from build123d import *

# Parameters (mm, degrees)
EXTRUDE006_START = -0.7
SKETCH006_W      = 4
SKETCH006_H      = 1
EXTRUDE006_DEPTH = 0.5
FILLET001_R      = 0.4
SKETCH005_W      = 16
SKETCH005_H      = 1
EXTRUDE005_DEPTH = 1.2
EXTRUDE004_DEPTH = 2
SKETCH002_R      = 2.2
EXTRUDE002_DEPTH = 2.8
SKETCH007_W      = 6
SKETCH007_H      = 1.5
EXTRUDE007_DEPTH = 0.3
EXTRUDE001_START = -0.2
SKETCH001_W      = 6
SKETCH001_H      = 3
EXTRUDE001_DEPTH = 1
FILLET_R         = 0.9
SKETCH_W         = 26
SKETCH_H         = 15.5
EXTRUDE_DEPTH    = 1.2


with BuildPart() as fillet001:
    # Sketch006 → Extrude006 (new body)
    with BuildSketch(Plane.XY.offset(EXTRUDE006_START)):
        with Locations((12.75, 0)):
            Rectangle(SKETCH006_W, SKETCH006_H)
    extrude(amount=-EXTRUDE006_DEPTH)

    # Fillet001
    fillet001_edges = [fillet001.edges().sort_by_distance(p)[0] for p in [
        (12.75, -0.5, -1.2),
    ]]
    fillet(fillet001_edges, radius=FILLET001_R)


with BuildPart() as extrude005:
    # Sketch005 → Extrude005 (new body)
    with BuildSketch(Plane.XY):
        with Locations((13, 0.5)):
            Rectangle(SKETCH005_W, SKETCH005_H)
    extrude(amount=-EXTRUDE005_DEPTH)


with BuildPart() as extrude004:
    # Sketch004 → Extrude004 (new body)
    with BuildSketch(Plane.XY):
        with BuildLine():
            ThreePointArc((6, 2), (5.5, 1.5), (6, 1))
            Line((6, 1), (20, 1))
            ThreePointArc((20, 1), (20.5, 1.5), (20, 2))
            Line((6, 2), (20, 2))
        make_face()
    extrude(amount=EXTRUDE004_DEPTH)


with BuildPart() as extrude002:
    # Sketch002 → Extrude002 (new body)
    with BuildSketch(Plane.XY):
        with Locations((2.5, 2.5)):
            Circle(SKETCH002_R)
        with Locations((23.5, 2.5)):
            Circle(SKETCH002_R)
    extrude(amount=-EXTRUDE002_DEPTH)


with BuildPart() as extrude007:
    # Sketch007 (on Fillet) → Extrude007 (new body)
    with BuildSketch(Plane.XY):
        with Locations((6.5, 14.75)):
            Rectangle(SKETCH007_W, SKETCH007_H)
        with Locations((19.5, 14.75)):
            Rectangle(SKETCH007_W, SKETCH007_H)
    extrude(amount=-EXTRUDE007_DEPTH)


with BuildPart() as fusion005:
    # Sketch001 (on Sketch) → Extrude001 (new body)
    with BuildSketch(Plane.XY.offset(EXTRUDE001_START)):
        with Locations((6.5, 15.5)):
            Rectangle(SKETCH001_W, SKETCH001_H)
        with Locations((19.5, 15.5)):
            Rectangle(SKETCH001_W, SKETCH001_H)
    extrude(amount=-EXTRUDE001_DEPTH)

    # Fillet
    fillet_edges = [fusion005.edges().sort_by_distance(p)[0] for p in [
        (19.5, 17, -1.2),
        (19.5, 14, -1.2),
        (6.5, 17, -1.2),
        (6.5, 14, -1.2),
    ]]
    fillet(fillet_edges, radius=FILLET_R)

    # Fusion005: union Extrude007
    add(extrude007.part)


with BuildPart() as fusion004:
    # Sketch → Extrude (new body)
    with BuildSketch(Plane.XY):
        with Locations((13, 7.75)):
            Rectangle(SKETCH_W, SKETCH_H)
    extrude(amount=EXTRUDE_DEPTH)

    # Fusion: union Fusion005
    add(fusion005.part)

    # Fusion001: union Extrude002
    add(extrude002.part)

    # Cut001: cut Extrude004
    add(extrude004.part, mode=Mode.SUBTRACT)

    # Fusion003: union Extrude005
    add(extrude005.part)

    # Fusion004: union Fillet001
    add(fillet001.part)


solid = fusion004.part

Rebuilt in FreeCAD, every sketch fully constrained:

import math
import FreeCAD as App
import Part
import Sketcher

V = App.Vector


def edges_at(feature, points):
    """Names of the edges that pass closest to the given points."""
    edges = feature.Shape.Edges
    near = lambda p: min(range(len(edges)), key=lambda i: edges[i].distToShape(Part.Vertex(*p))[0])
    return sorted({f"Edge{near(p) + 1}" for p in points})


def add_polygon(sketch, points):
    """Adds a closed chain of lines whose ends are joined by coincident constraints."""
    first, n = sketch.GeometryCount, len(points)
    for a, b in zip(points, points[1:] + points[:1]):
        sketch.addGeometry(Part.LineSegment(App.Vector(*a, 0), App.Vector(*b, 0)), False)
    for i in range(n):
        sketch.addConstraint(Sketcher.Constraint("Coincident", first + i, 2, first + (i + 1) % n, 1))

doc = App.newDocument("Part")
body = doc.addObject("PartDesign::Body", "Body")

sketch1 = body.newObject("Sketcher::SketchObject", "Sketch")
sketch1.AttachmentSupport = (doc.getObject("XY_Plane"), [""])
sketch1.MapMode = "FlatFace"
sketch1.AttachmentOffset = App.Placement(V(0, 0, -0.7), App.Rotation())
add_polygon(sketch1, [(10.8, 0.5), (10.8, -0.5), (14.8, -0.5), (14.8, 0.5)])
sketch1.addConstraint(Sketcher.Constraint("Vertical", 0))
sketch1.addConstraint(Sketcher.Constraint("Horizontal", 1))
sketch1.addConstraint(Sketcher.Constraint("Vertical", 2))
sketch1.addConstraint(Sketcher.Constraint("Horizontal", 3))
sketch1.addConstraint(Sketcher.Constraint("DistanceX", 1, 1, 1, 2, 4.0))
sketch1.addConstraint(Sketcher.Constraint("DistanceY", 0, 2, 0, 1, 1.0))
sketch1.addConstraint(Sketcher.Constraint("DistanceY", 0, 2, -1, 1, 0.5))
sketch1.addConstraint(Sketcher.Constraint("DistanceX", -1, 1, 0, 2, 10.75))
pad1 = body.newObject("PartDesign::Pad", "Pad")
pad1.Profile = sketch1
pad1.Length = 0.5
pad1.Reversed = True
doc.recompute()

fillet = body.newObject("PartDesign::Fillet", "Fillet")
fillet.Base = (pad1, edges_at(pad1, [(12.75, -0.5, -1.2)]))
fillet.Radius = 0.4
body2 = doc.addObject("PartDesign::Body", "Body001")

sketch2 = body2.newObject("Sketcher::SketchObject", "Sketch001")
sketch2.AttachmentSupport = (doc.getObject("XY_Plane001"), [""])
sketch2.MapMode = "FlatFace"
add_polygon(sketch2, [(5, 1), (5, 0), (21, 0), (21, 1)])
sketch2.addConstraint(Sketcher.Constraint("Vertical", 0))
sketch2.addConstraint(Sketcher.Constraint("Horizontal", 1))
sketch2.addConstraint(Sketcher.Constraint("Vertical", 2))
sketch2.addConstraint(Sketcher.Constraint("Horizontal", 3))
sketch2.addConstraint(Sketcher.Constraint("PointOnObject", 0, 2, -1))
sketch2.addConstraint(Sketcher.Constraint("DistanceX", 1, 1, 1, 2, 16.0))
sketch2.addConstraint(Sketcher.Constraint("DistanceY", 0, 2, 0, 1, 1.0))
sketch2.addConstraint(Sketcher.Constraint("DistanceX", -1, 1, 0, 2, 5.0))
pad2 = body2.newObject("PartDesign::Pad", "Pad001")
pad2.Profile = sketch2
pad2.Length = 1.2
pad2.Reversed = True
body3 = doc.addObject("PartDesign::Body", "Body002")

sketch3 = body3.newObject("Sketcher::SketchObject", "Sketch002")
sketch3.AttachmentSupport = (doc.getObject("XY_Plane002"), [""])
sketch3.MapMode = "FlatFace"
sketch3.addGeometry(Part.ArcOfCircle(Part.Circle(V(6, 1.5, 0), V(0, 0, 1), 0.5), math.radians(90), math.radians(270)), False)
sketch3.addGeometry(Part.LineSegment(V(6, 1, 0), V(20, 1, 0)), False)
sketch3.addGeometry(Part.ArcOfCircle(Part.Circle(V(20, 1.5, 0), V(0, 0, 1), 0.5), math.radians(-90), math.radians(90)), False)
sketch3.addGeometry(Part.LineSegment(V(20, 2, 0), V(6, 2, 0)), False)
sketch3.addConstraint(Sketcher.Constraint("Tangent", 0, 2, 1, 1))
sketch3.addConstraint(Sketcher.Constraint("Tangent", 1, 2, 2, 1))
sketch3.addConstraint(Sketcher.Constraint("Tangent", 2, 2, 3, 1))
sketch3.addConstraint(Sketcher.Constraint("Tangent", 3, 2, 0, 1))
sketch3.addConstraint(Sketcher.Constraint("Horizontal", 1))
sketch3.addConstraint(Sketcher.Constraint("Horizontal", 3))
sketch3.addConstraint(Sketcher.Constraint("Radius", 0, 0.5))
sketch3.addConstraint(Sketcher.Constraint("DistanceX", 1, 1, 1, 2, 14.0))
sketch3.addConstraint(Sketcher.Constraint("DistanceX", -1, 1, 0, 3, 6.0))
sketch3.addConstraint(Sketcher.Constraint("DistanceY", -1, 1, 0, 2, 1.0))
pad3 = body3.newObject("PartDesign::Pad", "Pad002")
pad3.Profile = sketch3
pad3.Length = 2
body4 = doc.addObject("PartDesign::Body", "Body003")
body4.AllowCompound = True

sketch4 = body4.newObject("Sketcher::SketchObject", "Sketch003")
sketch4.AttachmentSupport = (doc.getObject("XY_Plane003"), [""])
sketch4.MapMode = "FlatFace"
sketch4.addGeometry(Part.Circle(V(2.5, 2.5, 0), V(0, 0, 1), 2.2), False)
sketch4.addGeometry(Part.Circle(V(23.5, 2.5, 0), V(0, 0, 1), 2.2), False)
sketch4.addConstraint(Sketcher.Constraint("Equal", 0, 1))
sketch4.addConstraint(Sketcher.Constraint("Horizontal", 0, 3, 1, 3))
sketch4.addConstraint(Sketcher.Constraint("Diameter", 0, 4.4))
sketch4.addConstraint(Sketcher.Constraint("DistanceX", 0, 3, 1, 3, 21.0))
sketch4.addConstraint(Sketcher.Constraint("DistanceX", -1, 1, 0, 3, 2.5))
sketch4.addConstraint(Sketcher.Constraint("DistanceY", -1, 1, 0, 3, 2.5))
pad4 = body4.newObject("PartDesign::Pad", "Pad003")
pad4.Profile = sketch4
pad4.Length = 2.8
pad4.Reversed = True
body5 = doc.addObject("PartDesign::Body", "Body004")
body5.AllowCompound = True

sketch5 = body5.newObject("Sketcher::SketchObject", "Sketch004")
sketch5.AttachmentSupport = (doc.getObject("XY_Plane004"), [""])
sketch5.MapMode = "FlatFace"
add_polygon(sketch5, [(3.5, 15.5), (3.5, 14), (9.5, 14), (9.5, 15.5)])
add_polygon(sketch5, [(16.5, 15.5), (16.5, 14), (22.5, 14), (22.5, 15.5)])
sketch5.addConstraint(Sketcher.Constraint("Vertical", 0))
sketch5.addConstraint(Sketcher.Constraint("Horizontal", 1))
sketch5.addConstraint(Sketcher.Constraint("Vertical", 2))
sketch5.addConstraint(Sketcher.Constraint("Horizontal", 3))
sketch5.addConstraint(Sketcher.Constraint("Vertical", 4))
sketch5.addConstraint(Sketcher.Constraint("Horizontal", 5))
sketch5.addConstraint(Sketcher.Constraint("Vertical", 6))
sketch5.addConstraint(Sketcher.Constraint("Horizontal", 7))
sketch5.addConstraint(Sketcher.Constraint("Horizontal", 1, 2, 4, 2))
sketch5.addConstraint(Sketcher.Constraint("Horizontal", 3, 2, 6, 2))
sketch5.addConstraint(Sketcher.Constraint("Equal", 3, 5))
sketch5.addConstraint(Sketcher.Constraint("DistanceX", 1, 1, 1, 2, 6.0))
sketch5.addConstraint(Sketcher.Constraint("DistanceY", 0, 2, 0, 1, 1.5))
sketch5.addConstraint(Sketcher.Constraint("DistanceY", -1, 1, 0, 2, 14.0))
sketch5.addConstraint(Sketcher.Constraint("DistanceX", 1, 2, 4, 2, 7.0))
sketch5.addConstraint(Sketcher.Constraint("DistanceX", -1, 1, 0, 2, 3.5))
pad5 = body5.newObject("PartDesign::Pad", "Pad004")
pad5.Profile = sketch5
pad5.Length = 0.3
pad5.Reversed = True
body6 = doc.addObject("PartDesign::Body", "Body005")
body6.AllowCompound = True

sketch6 = body6.newObject("Sketcher::SketchObject", "Sketch005")
sketch6.AttachmentSupport = (doc.getObject("XY_Plane005"), [""])
sketch6.MapMode = "FlatFace"
sketch6.AttachmentOffset = App.Placement(V(0, 0, -0.2), App.Rotation())
add_polygon(sketch6, [(3.5, 17), (3.5, 14), (9.5, 14), (9.5, 17)])
add_polygon(sketch6, [(16.5, 17), (16.5, 14), (22.5, 14), (22.5, 17)])
sketch6.addConstraint(Sketcher.Constraint("Vertical", 0))
sketch6.addConstraint(Sketcher.Constraint("Horizontal", 1))
sketch6.addConstraint(Sketcher.Constraint("Vertical", 2))
sketch6.addConstraint(Sketcher.Constraint("Horizontal", 3))
sketch6.addConstraint(Sketcher.Constraint("Vertical", 4))
sketch6.addConstraint(Sketcher.Constraint("Horizontal", 5))
sketch6.addConstraint(Sketcher.Constraint("Vertical", 6))
sketch6.addConstraint(Sketcher.Constraint("Horizontal", 7))
sketch6.addConstraint(Sketcher.Constraint("Horizontal", 1, 2, 4, 2))
sketch6.addConstraint(Sketcher.Constraint("Horizontal", 3, 2, 6, 2))
sketch6.addConstraint(Sketcher.Constraint("Equal", 3, 5))
sketch6.addConstraint(Sketcher.Constraint("DistanceX", 1, 1, 1, 2, 6.0))
sketch6.addConstraint(Sketcher.Constraint("DistanceY", 0, 2, 0, 1, 3.0))
sketch6.addConstraint(Sketcher.Constraint("DistanceY", -1, 1, 0, 2, 14.0))
sketch6.addConstraint(Sketcher.Constraint("DistanceX", 1, 2, 4, 2, 7.0))
sketch6.addConstraint(Sketcher.Constraint("DistanceX", -1, 1, 0, 2, 3.5))
pad6 = body6.newObject("PartDesign::Pad", "Pad005")
pad6.Profile = sketch6
pad6.Length = 1
pad6.Reversed = True
doc.recompute()

fillet2 = body6.newObject("PartDesign::Fillet", "Fillet001")
fillet2.Base = (pad6, edges_at(pad6, [
    (19.5, 17, -1.2),
    (19.5, 14, -1.2),
    (6.5, 17, -1.2),
    (6.5, 14, -1.2),
]))
fillet2.Radius = 0.9
doc.recompute()

boolean = body6.newObject("PartDesign::Boolean", "Boolean")
boolean.Type = "Fuse"
boolean.addObjects([body5])
body7 = doc.addObject("PartDesign::Body", "Body006")

sketch7 = body7.newObject("Sketcher::SketchObject", "Sketch006")
sketch7.AttachmentSupport = (doc.getObject("XY_Plane006"), [""])
sketch7.MapMode = "FlatFace"
add_polygon(sketch7, [(0, 16), (0, 0), (26, 0), (26, 16)])
sketch7.addConstraint(Sketcher.Constraint("Vertical", 0))
sketch7.addConstraint(Sketcher.Constraint("Horizontal", 1))
sketch7.addConstraint(Sketcher.Constraint("Vertical", 2))
sketch7.addConstraint(Sketcher.Constraint("Horizontal", 3))
sketch7.addConstraint(Sketcher.Constraint("Coincident", 0, 2, -1, 1))
sketch7.addConstraint(Sketcher.Constraint("DistanceX", 1, 1, 1, 2, 26.0))
sketch7.addConstraint(Sketcher.Constraint("DistanceY", 0, 2, 0, 1, 15.5))
pad7 = body7.newObject("PartDesign::Pad", "Pad006")
pad7.Profile = sketch7
pad7.Length = 1.2
doc.recompute()

boolean2 = body7.newObject("PartDesign::Boolean", "Boolean001")
boolean2.Type = "Fuse"
boolean2.addObjects([body6])
doc.recompute()

boolean3 = body7.newObject("PartDesign::Boolean", "Boolean002")
boolean3.Type = "Fuse"
boolean3.addObjects([body4])
doc.recompute()

boolean4 = body7.newObject("PartDesign::Boolean", "Boolean003")
boolean4.Type = "Cut"
boolean4.addObjects([body3])
doc.recompute()

boolean5 = body7.newObject("PartDesign::Boolean", "Boolean004")
boolean5.Type = "Fuse"
boolean5.addObjects([body2])
doc.recompute()

boolean6 = body7.newObject("PartDesign::Boolean", "Boolean005")
boolean6.Type = "Fuse"
boolean6.addObjects([body])

doc.recompute()
